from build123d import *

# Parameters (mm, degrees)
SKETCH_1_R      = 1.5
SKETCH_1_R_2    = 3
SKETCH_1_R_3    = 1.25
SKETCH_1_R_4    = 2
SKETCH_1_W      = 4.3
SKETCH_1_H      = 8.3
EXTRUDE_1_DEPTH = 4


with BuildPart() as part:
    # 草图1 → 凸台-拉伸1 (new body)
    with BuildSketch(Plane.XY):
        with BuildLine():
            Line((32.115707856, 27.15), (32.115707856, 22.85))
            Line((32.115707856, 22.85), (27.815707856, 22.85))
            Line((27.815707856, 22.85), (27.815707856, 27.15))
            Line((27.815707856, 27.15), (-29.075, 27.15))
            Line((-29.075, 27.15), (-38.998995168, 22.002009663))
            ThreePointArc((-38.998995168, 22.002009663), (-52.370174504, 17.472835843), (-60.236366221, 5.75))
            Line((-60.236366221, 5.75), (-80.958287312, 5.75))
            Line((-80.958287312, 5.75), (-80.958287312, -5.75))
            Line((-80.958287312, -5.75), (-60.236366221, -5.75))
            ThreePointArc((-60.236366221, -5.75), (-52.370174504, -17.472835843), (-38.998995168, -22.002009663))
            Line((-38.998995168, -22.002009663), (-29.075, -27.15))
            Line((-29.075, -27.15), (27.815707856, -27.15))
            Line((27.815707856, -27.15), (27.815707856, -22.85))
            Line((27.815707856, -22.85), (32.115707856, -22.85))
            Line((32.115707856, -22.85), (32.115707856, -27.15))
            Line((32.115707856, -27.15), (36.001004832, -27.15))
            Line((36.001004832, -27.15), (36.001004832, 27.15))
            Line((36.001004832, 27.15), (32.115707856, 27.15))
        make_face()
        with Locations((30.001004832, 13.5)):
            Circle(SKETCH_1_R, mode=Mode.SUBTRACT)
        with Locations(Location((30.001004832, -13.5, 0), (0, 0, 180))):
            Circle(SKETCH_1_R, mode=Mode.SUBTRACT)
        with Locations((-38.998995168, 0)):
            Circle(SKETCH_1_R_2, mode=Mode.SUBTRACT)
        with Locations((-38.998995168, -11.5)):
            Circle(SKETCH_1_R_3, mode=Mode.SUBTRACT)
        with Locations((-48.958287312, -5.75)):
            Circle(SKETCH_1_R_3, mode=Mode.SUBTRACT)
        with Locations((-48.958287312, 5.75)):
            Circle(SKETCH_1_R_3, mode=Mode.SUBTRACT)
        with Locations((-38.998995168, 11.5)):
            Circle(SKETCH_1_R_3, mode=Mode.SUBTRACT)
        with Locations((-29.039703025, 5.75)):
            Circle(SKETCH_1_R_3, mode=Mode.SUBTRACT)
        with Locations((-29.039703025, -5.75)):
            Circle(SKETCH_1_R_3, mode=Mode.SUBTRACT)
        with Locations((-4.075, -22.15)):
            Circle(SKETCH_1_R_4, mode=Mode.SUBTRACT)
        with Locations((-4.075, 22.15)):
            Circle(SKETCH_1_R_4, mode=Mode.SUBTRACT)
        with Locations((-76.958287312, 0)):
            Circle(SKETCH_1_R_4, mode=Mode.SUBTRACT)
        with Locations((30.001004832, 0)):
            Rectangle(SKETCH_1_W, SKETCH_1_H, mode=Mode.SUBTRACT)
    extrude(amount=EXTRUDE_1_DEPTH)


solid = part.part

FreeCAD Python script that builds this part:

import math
import FreeCAD as App
import Part
import Sketcher

doc = App.newDocument("Part")
body = doc.addObject("PartDesign::Body", "Body")

sketch1 = doc.addObject("Sketcher::SketchObject", "Sketch")
body.addObject(sketch1)
sketch1.AttachmentSupport = (doc.XY_Plane, [""])
sketch1.MapMode = "FlatFace"
sketch1.addGeometry([
    Part.LineSegment(App.Vector(32.1, 27.1, 0), App.Vector(32.1, 22.9, 0)),
    Part.LineSegment(App.Vector(32.1, 22.9, 0), App.Vector(27.8, 22.9, 0)),
    Part.LineSegment(App.Vector(27.8, 22.9, 0), App.Vector(27.8, 27.1, 0)),
    Part.LineSegment(App.Vector(27.8, 27.1, 0), App.Vector(-29.1, 27.1, 0)),
    Part.LineSegment(App.Vector(-29.1, 27.1, 0), App.Vector(-39, 22, 0)),
    Part.ArcOfCircle(Part.Circle(App.Vector(-39, 0, 0), App.Vector(0, 0, 1), 22), math.radians(90), math.radians(165)),
    Part.LineSegment(App.Vector(-60.2, 5.8, 0), App.Vector(-81, 5.8, 0)),
    Part.LineSegment(App.Vector(-81, 5.8, 0), App.Vector(-81, -5.8, 0)),
    Part.LineSegment(App.Vector(-81, -5.8, 0), App.Vector(-60.2, -5.8, 0)),
    Part.ArcOfCircle(Part.Circle(App.Vector(-39, 0, 0), App.Vector(0, 0, 1), 22), math.radians(-165), math.radians(-90)),
    Part.LineSegment(App.Vector(-39, -22, 0), App.Vector(-29.1, -27.1, 0)),
    Part.LineSegment(App.Vector(-29.1, -27.1, 0), App.Vector(27.8, -27.1, 0)),
    Part.LineSegment(App.Vector(27.8, -27.1, 0), App.Vector(27.8, -22.9, 0)),
    Part.LineSegment(App.Vector(27.8, -22.9, 0), App.Vector(32.1, -22.9, 0)),
    Part.LineSegment(App.Vector(32.1, -22.9, 0), App.Vector(32.1, -27.1, 0)),
    Part.LineSegment(App.Vector(32.1, -27.1, 0), App.Vector(36, -27.1, 0)),
    Part.LineSegment(App.Vector(36, -27.1, 0), App.Vector(36, 27.1, 0)),
    Part.LineSegment(App.Vector(36, 27.1, 0), App.Vector(32.1, 27.1, 0)),
    Part.Circle(App.Vector(-77, 0, 0), App.Vector(0, 0, 1), 2),
    Part.Circle(App.Vector(-39, -11.5, 0), App.Vector(0, 0, 1), 1.2),
    Part.Circle(App.Vector(-49, -5.8, 0), App.Vector(0, 0, 1), 1.2),
    Part.Circle(App.Vector(-39, 0, 0), App.Vector(0, 0, 1), 3),
    Part.Circle(App.Vector(-29, -5.8, 0), App.Vector(0, 0, 1), 1.2),
    Part.Circle(App.Vector(-4.1, -22.1, 0), App.Vector(0, 0, 1), 2),
    Part.Circle(App.Vector(30, -13.5, 0), App.Vector(0, 0, 1), 1.5),
    Part.LineSegment(App.Vector(32.2, -4.2, 0), App.Vector(27.9, -4.2, 0)),
    Part.LineSegment(App.Vector(27.9, -4.2, 0), App.Vector(27.9, 4.2, 0)),
    Part.LineSegment(App.Vector(27.9, 4.2, 0), App.Vector(32.2, 4.2, 0)),
    Part.LineSegment(App.Vector(32.2, 4.2, 0), App.Vector(32.2, -4.2, 0)),
    Part.Circle(App.Vector(-49, 5.8, 0), App.Vector(0, 0, 1), 1.2),
    Part.Circle(App.Vector(-29, 5.8, 0), App.Vector(0, 0, 1), 1.2),
    Part.Circle(App.Vector(-39, 11.5, 0), App.Vector(0, 0, 1), 1.2),
    Part.Circle(App.Vector(-4.1, 22.1, 0), App.Vector(0, 0, 1), 2),
    Part.Circle(App.Vector(30, 13.5, 0), App.Vector(0, 0, 1), 1.5),
], False)
sketch1.addConstraint([
    Sketcher.Constraint("Coincident", 0, 2, 1, 1),
    Sketcher.Constraint("Coincident", 1, 2, 2, 1),
    Sketcher.Constraint("Coincident", 2, 2, 3, 1),
    Sketcher.Constraint("Coincident", 3, 2, 4, 1),
    Sketcher.Constraint("Coincident", 4, 2, 5, 1),
    Sketcher.Constraint("Coincident", 5, 2, 6, 1),
    Sketcher.Constraint("Coincident", 6, 2, 7, 1),
    Sketcher.Constraint("Coincident", 7, 2, 8, 1),
    Sketcher.Constraint("Coincident", 8, 2, 9, 1),
    Sketcher.Constraint("Coincident", 9, 2, 10, 1),
    Sketcher.Constraint("Coincident", 10, 2, 11, 1),
    Sketcher.Constraint("Coincident", 11, 2, 12, 1),
    Sketcher.Constraint("Coincident", 12, 2, 13, 1),
    Sketcher.Constraint("Coincident", 13, 2, 14, 1),
    Sketcher.Constraint("Coincident", 14, 2, 15, 1),
    Sketcher.Constraint("Coincident", 15, 2, 16, 1),
    Sketcher.Constraint("Coincident", 16, 2, 17, 1),
    Sketcher.Constraint("Coincident", 17, 2, 0, 1),
    Sketcher.Constraint("Coincident", 25, 2, 26, 1),
    Sketcher.Constraint("Coincident", 26, 2, 27, 1),
    Sketcher.Constraint("Coincident", 27, 2, 28, 1),
    Sketcher.Constraint("Coincident", 28, 2, 25, 1),
    Sketcher.Constraint("Vertical", 0),
    Sketcher.Constraint("Horizontal", 1),
    Sketcher.Constraint("Vertical", 2),
    Sketcher.Constraint("Horizontal", 3),
    Sketcher.Constraint("Horizontal", 6),
    Sketcher.Constraint("Vertical", 7),
    Sketcher.Constraint("Horizontal", 8),
    Sketcher.Constraint("Horizontal", 11),
    Sketcher.Constraint("Vertical", 12),
    Sketcher.Constraint("Horizontal", 13),
    Sketcher.Constraint("Vertical", 14),
    Sketcher.Constraint("Horizontal", 15),
    Sketcher.Constraint("Vertical", 16),
    Sketcher.Constraint("Horizontal", 17),
    Sketcher.Constraint("Horizontal", 25),
    Sketcher.Constraint("Vertical", 26),
    Sketcher.Constraint("Horizontal", 27),
    Sketcher.Constraint("Vertical", 28),
    Sketcher.Constraint("Coincident", 9, 3, 5, 3),
    Sketcher.Constraint("Coincident", 21, 3, 5, 3),
    Sketcher.Constraint("Equal", 5, 9),
    Sketcher.Constraint("Equal", 19, 20),
    Sketcher.Constraint("Equal", 20, 22),
    Sketcher.Constraint("Equal", 18, 23),
    Sketcher.Constraint("Equal", 22, 29),
    Sketcher.Constraint("Equal", 29, 30),
    Sketcher.Constraint("Equal", 30, 31),
    Sketcher.Constraint("Equal", 23, 32),
    Sketcher.Constraint("Equal", 24, 33),
    Sketcher.Constraint("Symmetric", 20, 3, 29, 3, -1),
    Sketcher.Constraint("Symmetric", 22, 3, 30, 3, -1),
    Sketcher.Constraint("Symmetric", 19, 3, 31, 3, -1),
    Sketcher.Constraint("Symmetric", 23, 3, 32, 3, -1),
    Sketcher.Constraint("Symmetric", 24, 3, 33, 3, -1),
    Sketcher.Constraint("Symmetric", 5, 2, 8, 2, -1),
    Sketcher.Constraint("Symmetric", 3, 2, 10, 2, -1),
    Sketcher.Constraint("Symmetric", 1, 2, 12, 2, -1),
    Sketcher.Constraint("Symmetric", 14, 2, 17, 2, -1),
    Sketcher.Constraint("PointOnObject", 18, 3, -1),
    Sketcher.Constraint("Horizontal", 20, 3, 22, 3),
    Sketcher.Constraint("Horizontal", 30, 3, 5, 2),
    Sketcher.Constraint("Horizontal", 11, 2, 14, 2),
    Sketcher.Constraint("Vertical", 9, 3, 19, 3),
    Sketcher.Constraint("Vertical", 31, 3, 4, 2),
    Sketcher.Constraint("Vertical", 4, 2, 9, 2),
    Sketcher.Constraint("Equal", 13, 25),
    Sketcher.Constraint("Equal", 27, 0),
    Sketcher.Constraint("Diameter", 18, 4.0),
    Sketcher.Constraint("Diameter", 21, 6.0),
    Sketcher.Constraint("Diameter", 24, 3.0),
    Sketcher.Constraint("Diameter", 19, 2.5),
    Sketcher.Constraint("DistanceX", 1, 2, 1, 1, 4.3),
    Sketcher.Constraint("DistanceY", 7, 2, 7, 1, 11.5),
    Sketcher.Constraint("DistanceY", 16, 1, 16, 2, 54.3),
    Sketcher.Constraint("DistanceY", 26, 1, 26, 2, 8.3),
    Sketcher.Constraint("DistanceX", 18, 3, 20, 3, 28.0),
    Sketcher.Constraint("DistanceX", 19, 3, 24, 3, 69.0),
    Sketcher.Constraint("DistanceY", 24, 3, 19, 3, 2.0),
    Sketcher.Constraint("DistanceY", 24, 3, 33, 3, 27.0),
    Sketcher.Constraint("DistanceY", 23, 3, 0, 2, 45.0),
    Sketcher.Constraint("DistanceX", 3, 2, 32, 3, 25.0),
    Sketcher.Constraint("DistanceX", 6, 2, 18, 3, 4.0),
    Sketcher.Constraint("DistanceX", 24, 3, 15, 2, 6.0),
    Sketcher.Constraint("DistanceY", 11, 2, 25, 2, 23.0),
    Sketcher.Constraint("Radius", 5, 22.00201),
    Sketcher.Constraint("DistanceX", 25, 2, 24, 3, 2.15),
    Sketcher.Constraint("DistanceX", 23, 3, -1, 1, 4.075),
    Sketcher.Constraint("DistanceX", 6, 2, 6, 1, 20.721921),
    Sketcher.Constraint("Distance", 4, 11.17978),
    Sketcher.Constraint("DistanceX", 3, 2, 3, 1, 56.890708),
    Sketcher.Constraint("DistanceX", 30, 3, 0, 2, 61.155411),
])
pad1 = doc.addObject("PartDesign::Pad", "Pad")
body.addObject(pad1)
pad1.Profile = sketch1
pad1.Length = 4

doc.recompute()
